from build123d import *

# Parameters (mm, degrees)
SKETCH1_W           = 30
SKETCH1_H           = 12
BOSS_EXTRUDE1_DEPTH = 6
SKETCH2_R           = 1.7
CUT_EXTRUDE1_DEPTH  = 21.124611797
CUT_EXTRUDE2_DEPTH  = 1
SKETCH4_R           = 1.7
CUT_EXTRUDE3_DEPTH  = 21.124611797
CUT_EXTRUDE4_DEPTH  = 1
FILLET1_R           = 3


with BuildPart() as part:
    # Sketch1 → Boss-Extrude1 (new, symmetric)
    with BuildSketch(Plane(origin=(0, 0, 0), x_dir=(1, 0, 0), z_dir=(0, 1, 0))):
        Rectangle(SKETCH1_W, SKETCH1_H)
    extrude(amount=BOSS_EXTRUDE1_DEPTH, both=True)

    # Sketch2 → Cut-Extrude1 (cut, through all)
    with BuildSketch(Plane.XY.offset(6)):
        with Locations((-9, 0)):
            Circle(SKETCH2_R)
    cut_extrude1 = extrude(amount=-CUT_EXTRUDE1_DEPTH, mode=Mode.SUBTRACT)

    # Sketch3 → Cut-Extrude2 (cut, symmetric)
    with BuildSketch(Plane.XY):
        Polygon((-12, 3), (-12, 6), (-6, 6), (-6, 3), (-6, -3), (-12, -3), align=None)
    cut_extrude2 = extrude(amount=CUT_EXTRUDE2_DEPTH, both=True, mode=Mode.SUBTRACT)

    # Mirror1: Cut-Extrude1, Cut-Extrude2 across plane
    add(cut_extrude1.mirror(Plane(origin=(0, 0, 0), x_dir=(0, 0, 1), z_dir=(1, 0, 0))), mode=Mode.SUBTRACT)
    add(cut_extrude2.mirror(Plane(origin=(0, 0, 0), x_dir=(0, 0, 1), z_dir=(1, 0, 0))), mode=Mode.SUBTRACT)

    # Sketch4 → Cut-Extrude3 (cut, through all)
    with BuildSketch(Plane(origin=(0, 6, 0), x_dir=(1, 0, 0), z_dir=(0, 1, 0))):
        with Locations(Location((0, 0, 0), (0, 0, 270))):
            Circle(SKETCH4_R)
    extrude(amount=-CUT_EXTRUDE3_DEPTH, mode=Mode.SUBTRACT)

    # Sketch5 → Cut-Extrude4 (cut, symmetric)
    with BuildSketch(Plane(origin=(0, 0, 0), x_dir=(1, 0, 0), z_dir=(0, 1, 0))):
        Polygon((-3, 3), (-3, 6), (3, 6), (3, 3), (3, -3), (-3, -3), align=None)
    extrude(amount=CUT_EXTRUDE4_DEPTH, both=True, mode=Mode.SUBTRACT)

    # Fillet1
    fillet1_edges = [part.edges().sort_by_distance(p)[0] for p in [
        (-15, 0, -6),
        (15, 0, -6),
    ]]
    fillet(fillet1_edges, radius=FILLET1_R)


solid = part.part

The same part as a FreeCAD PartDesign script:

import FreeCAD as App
import Part
import Sketcher

V = App.Vector


def edges_at(feature, points):
    """Names of the edges that pass closest to the given points."""
    edges = feature.Shape.Edges
    near = lambda p: min(range(len(edges)), key=lambda i: edges[i].distToShape(Part.Vertex(*p))[0])
    return sorted({f"Edge{near(p) + 1}" for p in points})

doc = App.newDocument("Part")
body = doc.addObject("PartDesign::Body", "Body")

# Sketch on XZ plane
sketch1 = body.newObject("Sketcher::SketchObject", "Sketch")
sketch1.AttachmentSupport = (doc.getObject("XZ_Plane"), [""])
sketch1.MapMode = "FlatFace"
sketch1.addGeometry([
    Part.LineSegment(V(-15, -6, 0), V(-15, 6, 0)),
    Part.LineSegment(V(-15, 6, 0), V(15, 6, 0)),
    Part.LineSegment(V(15, 6, 0), V(15, -6, 0)),
    Part.LineSegment(V(15, -6, 0), V(-15, -6, 0)),
], False)
sketch1.addConstraint([
    Sketcher.Constraint("Coincident", 0, 2, 1, 1),
    Sketcher.Constraint("Coincident", 1, 2, 2, 1),
    Sketcher.Constraint("Coincident", 2, 2, 3, 1),
    Sketcher.Constraint("Coincident", 3, 2, 0, 1),
    Sketcher.Constraint("Vertical", 0),
    Sketcher.Constraint("Horizontal", 1),
    Sketcher.Constraint("Vertical", 2),
    Sketcher.Constraint("Horizontal", 3),
    Sketcher.Constraint("Symmetric", 0, 2, 2, 2, -1, 1),
    Sketcher.Constraint("DistanceX", 1, 1, 1, 2, 30.0),
    Sketcher.Constraint("DistanceY", 0, 1, 0, 2, 12.0),
])
pad1 = body.newObject("PartDesign::Pad", "Pad")
pad1.Profile = sketch1
pad1.Length = 12
pad1.Midplane = True

# Sketch on XY plane
sketch2 = body.newObject("Sketcher::SketchObject", "Sketch001")
sketch2.AttachmentSupport = (doc.getObject("XY_Plane"), [""])
sketch2.MapMode = "FlatFace"
sketch2.AttachmentOffset = App.Placement(V(0, 0, 6), App.Rotation())
sketch2.addGeometry(Part.Circle(V(-9, 0, 0), V(0, 0, 1), 1.7), False)
sketch2.addConstraint([
    Sketcher.Constraint("PointOnObject", 0, 3, -1),
    Sketcher.Constraint("Diameter", 0, 3.4),
    Sketcher.Constraint("DistanceX", 0, 3, -1, 1, 9.0),
])
pocket1 = body.newObject("PartDesign::Pocket", "Pocket")
pocket1.Profile = sketch2
pocket1.Type = "ThroughAll"

# Sketch on XY plane
sketch3 = body.newObject("Sketcher::SketchObject", "Sketch002")
sketch3.AttachmentSupport = (doc.getObject("XY_Plane"), [""])
sketch3.MapMode = "FlatFace"
sketch3.addGeometry([
    Part.LineSegment(V(-12, 6, 0), V(-12, -3, 0)),
    Part.LineSegment(V(-12, -3, 0), V(-6, -3, 0)),
    Part.LineSegment(V(-6, -3, 0), V(-6, 6, 0)),
    Part.LineSegment(V(-6, 6, 0), V(-12, 6, 0)),
], False)
sketch3.addConstraint([
    Sketcher.Constraint("Coincident", 0, 2, 1, 1),
    Sketcher.Constraint("Coincident", 1, 2, 2, 1),
    Sketcher.Constraint("Coincident", 2, 2, 3, 1),
    Sketcher.Constraint("Coincident", 3, 2, 0, 1),
    Sketcher.Constraint("Vertical", 0),
    Sketcher.Constraint("Horizontal", 1),
    Sketcher.Constraint("Vertical", 2),
    Sketcher.Constraint("Horizontal", 3),
    Sketcher.Constraint("DistanceX", 1, 1, 1, 2, 6.0),
    Sketcher.Constraint("DistanceY", 0, 2, 0, 1, 9.0),
    Sketcher.Constraint("DistanceX", 0, 2, -1, 1, 12.0),
    Sketcher.Constraint("DistanceY", 0, 2, -1, 1, 3.0),
])
pocket2 = body.newObject("PartDesign::Pocket", "Pocket001")
pocket2.Profile = sketch3
pocket2.Length = 2
pocket2.Midplane = True
doc.recompute()

mirrored = body.newObject("PartDesign::Mirrored", "Mirrored")
mirrored.Originals = [pocket1, pocket2]
mirrored.MirrorPlane = (doc.getObject("YZ_Plane"), [""])
body.Tip = mirrored

# Sketch on XZ plane
sketch4 = body.newObject("Sketcher::SketchObject", "Sketch003")
sketch4.AttachmentSupport = (doc.getObject("XZ_Plane"), [""])
sketch4.MapMode = "FlatFace"
sketch4.AttachmentOffset = App.Placement(V(0, 0, -6), App.Rotation())
sketch4.addGeometry(Part.Circle(V(0, 0, 0), V(0, 0, 1), 1.7), False)
sketch4.addConstraint([
    Sketcher.Constraint("Coincident", 0, 3, -1, 1),
    Sketcher.Constraint("Diameter", 0, 3.4),
])
pocket3 = body.newObject("PartDesign::Pocket", "Pocket002")
pocket3.Profile = sketch4
pocket3.Type = "ThroughAll"
pocket3.Reversed = True

# Sketch on XZ plane
sketch5 = body.newObject("Sketcher::SketchObject", "Sketch004")
sketch5.AttachmentSupport = (doc.getObject("XZ_Plane"), [""])
sketch5.MapMode = "FlatFace"
sketch5.addGeometry([
    Part.LineSegment(V(-3, -6, 0), V(-3, 3, 0)),
    Part.LineSegment(V(-3, 3, 0), V(3, 3, 0)),
    Part.LineSegment(V(3, 3, 0), V(3, -6, 0)),
    Part.LineSegment(V(3, -6, 0), V(-3, -6, 0)),
], False)
sketch5.addConstraint([
    Sketcher.Constraint("Coincident", 0, 2, 1, 1),
    Sketcher.Constraint("Coincident", 1, 2, 2, 1),
    Sketcher.Constraint("Coincident", 2, 2, 3, 1),
    Sketcher.Constraint("Coincident", 3, 2, 0, 1),
    Sketcher.Constraint("Vertical", 0),
    Sketcher.Constraint("Horizontal", 1),
    Sketcher.Constraint("Vertical", 2),
    Sketcher.Constraint("Horizontal", 3),
    Sketcher.Constraint("DistanceX", 1, 1, 1, 2, 6.0),
    Sketcher.Constraint("DistanceY", 0, 1, 0, 2, 9.0),
    Sketcher.Constraint("DistanceX", 0, 2, -1, 1, 3.0),
    Sketcher.Constraint("DistanceY", -1, 1, 0, 2, 3.0),
])
pocket4 = body.newObject("PartDesign::Pocket", "Pocket003")
pocket4.Profile = sketch5
pocket4.Length = 2
pocket4.Midplane = True
doc.recompute()

fillet = body.newObject("PartDesign::Fillet", "Fillet")
fillet.Base = (pocket4, edges_at(pocket4, [(-15, 0, -6), (15, 0, -6)]))
fillet.Radius = 3

doc.recompute()
